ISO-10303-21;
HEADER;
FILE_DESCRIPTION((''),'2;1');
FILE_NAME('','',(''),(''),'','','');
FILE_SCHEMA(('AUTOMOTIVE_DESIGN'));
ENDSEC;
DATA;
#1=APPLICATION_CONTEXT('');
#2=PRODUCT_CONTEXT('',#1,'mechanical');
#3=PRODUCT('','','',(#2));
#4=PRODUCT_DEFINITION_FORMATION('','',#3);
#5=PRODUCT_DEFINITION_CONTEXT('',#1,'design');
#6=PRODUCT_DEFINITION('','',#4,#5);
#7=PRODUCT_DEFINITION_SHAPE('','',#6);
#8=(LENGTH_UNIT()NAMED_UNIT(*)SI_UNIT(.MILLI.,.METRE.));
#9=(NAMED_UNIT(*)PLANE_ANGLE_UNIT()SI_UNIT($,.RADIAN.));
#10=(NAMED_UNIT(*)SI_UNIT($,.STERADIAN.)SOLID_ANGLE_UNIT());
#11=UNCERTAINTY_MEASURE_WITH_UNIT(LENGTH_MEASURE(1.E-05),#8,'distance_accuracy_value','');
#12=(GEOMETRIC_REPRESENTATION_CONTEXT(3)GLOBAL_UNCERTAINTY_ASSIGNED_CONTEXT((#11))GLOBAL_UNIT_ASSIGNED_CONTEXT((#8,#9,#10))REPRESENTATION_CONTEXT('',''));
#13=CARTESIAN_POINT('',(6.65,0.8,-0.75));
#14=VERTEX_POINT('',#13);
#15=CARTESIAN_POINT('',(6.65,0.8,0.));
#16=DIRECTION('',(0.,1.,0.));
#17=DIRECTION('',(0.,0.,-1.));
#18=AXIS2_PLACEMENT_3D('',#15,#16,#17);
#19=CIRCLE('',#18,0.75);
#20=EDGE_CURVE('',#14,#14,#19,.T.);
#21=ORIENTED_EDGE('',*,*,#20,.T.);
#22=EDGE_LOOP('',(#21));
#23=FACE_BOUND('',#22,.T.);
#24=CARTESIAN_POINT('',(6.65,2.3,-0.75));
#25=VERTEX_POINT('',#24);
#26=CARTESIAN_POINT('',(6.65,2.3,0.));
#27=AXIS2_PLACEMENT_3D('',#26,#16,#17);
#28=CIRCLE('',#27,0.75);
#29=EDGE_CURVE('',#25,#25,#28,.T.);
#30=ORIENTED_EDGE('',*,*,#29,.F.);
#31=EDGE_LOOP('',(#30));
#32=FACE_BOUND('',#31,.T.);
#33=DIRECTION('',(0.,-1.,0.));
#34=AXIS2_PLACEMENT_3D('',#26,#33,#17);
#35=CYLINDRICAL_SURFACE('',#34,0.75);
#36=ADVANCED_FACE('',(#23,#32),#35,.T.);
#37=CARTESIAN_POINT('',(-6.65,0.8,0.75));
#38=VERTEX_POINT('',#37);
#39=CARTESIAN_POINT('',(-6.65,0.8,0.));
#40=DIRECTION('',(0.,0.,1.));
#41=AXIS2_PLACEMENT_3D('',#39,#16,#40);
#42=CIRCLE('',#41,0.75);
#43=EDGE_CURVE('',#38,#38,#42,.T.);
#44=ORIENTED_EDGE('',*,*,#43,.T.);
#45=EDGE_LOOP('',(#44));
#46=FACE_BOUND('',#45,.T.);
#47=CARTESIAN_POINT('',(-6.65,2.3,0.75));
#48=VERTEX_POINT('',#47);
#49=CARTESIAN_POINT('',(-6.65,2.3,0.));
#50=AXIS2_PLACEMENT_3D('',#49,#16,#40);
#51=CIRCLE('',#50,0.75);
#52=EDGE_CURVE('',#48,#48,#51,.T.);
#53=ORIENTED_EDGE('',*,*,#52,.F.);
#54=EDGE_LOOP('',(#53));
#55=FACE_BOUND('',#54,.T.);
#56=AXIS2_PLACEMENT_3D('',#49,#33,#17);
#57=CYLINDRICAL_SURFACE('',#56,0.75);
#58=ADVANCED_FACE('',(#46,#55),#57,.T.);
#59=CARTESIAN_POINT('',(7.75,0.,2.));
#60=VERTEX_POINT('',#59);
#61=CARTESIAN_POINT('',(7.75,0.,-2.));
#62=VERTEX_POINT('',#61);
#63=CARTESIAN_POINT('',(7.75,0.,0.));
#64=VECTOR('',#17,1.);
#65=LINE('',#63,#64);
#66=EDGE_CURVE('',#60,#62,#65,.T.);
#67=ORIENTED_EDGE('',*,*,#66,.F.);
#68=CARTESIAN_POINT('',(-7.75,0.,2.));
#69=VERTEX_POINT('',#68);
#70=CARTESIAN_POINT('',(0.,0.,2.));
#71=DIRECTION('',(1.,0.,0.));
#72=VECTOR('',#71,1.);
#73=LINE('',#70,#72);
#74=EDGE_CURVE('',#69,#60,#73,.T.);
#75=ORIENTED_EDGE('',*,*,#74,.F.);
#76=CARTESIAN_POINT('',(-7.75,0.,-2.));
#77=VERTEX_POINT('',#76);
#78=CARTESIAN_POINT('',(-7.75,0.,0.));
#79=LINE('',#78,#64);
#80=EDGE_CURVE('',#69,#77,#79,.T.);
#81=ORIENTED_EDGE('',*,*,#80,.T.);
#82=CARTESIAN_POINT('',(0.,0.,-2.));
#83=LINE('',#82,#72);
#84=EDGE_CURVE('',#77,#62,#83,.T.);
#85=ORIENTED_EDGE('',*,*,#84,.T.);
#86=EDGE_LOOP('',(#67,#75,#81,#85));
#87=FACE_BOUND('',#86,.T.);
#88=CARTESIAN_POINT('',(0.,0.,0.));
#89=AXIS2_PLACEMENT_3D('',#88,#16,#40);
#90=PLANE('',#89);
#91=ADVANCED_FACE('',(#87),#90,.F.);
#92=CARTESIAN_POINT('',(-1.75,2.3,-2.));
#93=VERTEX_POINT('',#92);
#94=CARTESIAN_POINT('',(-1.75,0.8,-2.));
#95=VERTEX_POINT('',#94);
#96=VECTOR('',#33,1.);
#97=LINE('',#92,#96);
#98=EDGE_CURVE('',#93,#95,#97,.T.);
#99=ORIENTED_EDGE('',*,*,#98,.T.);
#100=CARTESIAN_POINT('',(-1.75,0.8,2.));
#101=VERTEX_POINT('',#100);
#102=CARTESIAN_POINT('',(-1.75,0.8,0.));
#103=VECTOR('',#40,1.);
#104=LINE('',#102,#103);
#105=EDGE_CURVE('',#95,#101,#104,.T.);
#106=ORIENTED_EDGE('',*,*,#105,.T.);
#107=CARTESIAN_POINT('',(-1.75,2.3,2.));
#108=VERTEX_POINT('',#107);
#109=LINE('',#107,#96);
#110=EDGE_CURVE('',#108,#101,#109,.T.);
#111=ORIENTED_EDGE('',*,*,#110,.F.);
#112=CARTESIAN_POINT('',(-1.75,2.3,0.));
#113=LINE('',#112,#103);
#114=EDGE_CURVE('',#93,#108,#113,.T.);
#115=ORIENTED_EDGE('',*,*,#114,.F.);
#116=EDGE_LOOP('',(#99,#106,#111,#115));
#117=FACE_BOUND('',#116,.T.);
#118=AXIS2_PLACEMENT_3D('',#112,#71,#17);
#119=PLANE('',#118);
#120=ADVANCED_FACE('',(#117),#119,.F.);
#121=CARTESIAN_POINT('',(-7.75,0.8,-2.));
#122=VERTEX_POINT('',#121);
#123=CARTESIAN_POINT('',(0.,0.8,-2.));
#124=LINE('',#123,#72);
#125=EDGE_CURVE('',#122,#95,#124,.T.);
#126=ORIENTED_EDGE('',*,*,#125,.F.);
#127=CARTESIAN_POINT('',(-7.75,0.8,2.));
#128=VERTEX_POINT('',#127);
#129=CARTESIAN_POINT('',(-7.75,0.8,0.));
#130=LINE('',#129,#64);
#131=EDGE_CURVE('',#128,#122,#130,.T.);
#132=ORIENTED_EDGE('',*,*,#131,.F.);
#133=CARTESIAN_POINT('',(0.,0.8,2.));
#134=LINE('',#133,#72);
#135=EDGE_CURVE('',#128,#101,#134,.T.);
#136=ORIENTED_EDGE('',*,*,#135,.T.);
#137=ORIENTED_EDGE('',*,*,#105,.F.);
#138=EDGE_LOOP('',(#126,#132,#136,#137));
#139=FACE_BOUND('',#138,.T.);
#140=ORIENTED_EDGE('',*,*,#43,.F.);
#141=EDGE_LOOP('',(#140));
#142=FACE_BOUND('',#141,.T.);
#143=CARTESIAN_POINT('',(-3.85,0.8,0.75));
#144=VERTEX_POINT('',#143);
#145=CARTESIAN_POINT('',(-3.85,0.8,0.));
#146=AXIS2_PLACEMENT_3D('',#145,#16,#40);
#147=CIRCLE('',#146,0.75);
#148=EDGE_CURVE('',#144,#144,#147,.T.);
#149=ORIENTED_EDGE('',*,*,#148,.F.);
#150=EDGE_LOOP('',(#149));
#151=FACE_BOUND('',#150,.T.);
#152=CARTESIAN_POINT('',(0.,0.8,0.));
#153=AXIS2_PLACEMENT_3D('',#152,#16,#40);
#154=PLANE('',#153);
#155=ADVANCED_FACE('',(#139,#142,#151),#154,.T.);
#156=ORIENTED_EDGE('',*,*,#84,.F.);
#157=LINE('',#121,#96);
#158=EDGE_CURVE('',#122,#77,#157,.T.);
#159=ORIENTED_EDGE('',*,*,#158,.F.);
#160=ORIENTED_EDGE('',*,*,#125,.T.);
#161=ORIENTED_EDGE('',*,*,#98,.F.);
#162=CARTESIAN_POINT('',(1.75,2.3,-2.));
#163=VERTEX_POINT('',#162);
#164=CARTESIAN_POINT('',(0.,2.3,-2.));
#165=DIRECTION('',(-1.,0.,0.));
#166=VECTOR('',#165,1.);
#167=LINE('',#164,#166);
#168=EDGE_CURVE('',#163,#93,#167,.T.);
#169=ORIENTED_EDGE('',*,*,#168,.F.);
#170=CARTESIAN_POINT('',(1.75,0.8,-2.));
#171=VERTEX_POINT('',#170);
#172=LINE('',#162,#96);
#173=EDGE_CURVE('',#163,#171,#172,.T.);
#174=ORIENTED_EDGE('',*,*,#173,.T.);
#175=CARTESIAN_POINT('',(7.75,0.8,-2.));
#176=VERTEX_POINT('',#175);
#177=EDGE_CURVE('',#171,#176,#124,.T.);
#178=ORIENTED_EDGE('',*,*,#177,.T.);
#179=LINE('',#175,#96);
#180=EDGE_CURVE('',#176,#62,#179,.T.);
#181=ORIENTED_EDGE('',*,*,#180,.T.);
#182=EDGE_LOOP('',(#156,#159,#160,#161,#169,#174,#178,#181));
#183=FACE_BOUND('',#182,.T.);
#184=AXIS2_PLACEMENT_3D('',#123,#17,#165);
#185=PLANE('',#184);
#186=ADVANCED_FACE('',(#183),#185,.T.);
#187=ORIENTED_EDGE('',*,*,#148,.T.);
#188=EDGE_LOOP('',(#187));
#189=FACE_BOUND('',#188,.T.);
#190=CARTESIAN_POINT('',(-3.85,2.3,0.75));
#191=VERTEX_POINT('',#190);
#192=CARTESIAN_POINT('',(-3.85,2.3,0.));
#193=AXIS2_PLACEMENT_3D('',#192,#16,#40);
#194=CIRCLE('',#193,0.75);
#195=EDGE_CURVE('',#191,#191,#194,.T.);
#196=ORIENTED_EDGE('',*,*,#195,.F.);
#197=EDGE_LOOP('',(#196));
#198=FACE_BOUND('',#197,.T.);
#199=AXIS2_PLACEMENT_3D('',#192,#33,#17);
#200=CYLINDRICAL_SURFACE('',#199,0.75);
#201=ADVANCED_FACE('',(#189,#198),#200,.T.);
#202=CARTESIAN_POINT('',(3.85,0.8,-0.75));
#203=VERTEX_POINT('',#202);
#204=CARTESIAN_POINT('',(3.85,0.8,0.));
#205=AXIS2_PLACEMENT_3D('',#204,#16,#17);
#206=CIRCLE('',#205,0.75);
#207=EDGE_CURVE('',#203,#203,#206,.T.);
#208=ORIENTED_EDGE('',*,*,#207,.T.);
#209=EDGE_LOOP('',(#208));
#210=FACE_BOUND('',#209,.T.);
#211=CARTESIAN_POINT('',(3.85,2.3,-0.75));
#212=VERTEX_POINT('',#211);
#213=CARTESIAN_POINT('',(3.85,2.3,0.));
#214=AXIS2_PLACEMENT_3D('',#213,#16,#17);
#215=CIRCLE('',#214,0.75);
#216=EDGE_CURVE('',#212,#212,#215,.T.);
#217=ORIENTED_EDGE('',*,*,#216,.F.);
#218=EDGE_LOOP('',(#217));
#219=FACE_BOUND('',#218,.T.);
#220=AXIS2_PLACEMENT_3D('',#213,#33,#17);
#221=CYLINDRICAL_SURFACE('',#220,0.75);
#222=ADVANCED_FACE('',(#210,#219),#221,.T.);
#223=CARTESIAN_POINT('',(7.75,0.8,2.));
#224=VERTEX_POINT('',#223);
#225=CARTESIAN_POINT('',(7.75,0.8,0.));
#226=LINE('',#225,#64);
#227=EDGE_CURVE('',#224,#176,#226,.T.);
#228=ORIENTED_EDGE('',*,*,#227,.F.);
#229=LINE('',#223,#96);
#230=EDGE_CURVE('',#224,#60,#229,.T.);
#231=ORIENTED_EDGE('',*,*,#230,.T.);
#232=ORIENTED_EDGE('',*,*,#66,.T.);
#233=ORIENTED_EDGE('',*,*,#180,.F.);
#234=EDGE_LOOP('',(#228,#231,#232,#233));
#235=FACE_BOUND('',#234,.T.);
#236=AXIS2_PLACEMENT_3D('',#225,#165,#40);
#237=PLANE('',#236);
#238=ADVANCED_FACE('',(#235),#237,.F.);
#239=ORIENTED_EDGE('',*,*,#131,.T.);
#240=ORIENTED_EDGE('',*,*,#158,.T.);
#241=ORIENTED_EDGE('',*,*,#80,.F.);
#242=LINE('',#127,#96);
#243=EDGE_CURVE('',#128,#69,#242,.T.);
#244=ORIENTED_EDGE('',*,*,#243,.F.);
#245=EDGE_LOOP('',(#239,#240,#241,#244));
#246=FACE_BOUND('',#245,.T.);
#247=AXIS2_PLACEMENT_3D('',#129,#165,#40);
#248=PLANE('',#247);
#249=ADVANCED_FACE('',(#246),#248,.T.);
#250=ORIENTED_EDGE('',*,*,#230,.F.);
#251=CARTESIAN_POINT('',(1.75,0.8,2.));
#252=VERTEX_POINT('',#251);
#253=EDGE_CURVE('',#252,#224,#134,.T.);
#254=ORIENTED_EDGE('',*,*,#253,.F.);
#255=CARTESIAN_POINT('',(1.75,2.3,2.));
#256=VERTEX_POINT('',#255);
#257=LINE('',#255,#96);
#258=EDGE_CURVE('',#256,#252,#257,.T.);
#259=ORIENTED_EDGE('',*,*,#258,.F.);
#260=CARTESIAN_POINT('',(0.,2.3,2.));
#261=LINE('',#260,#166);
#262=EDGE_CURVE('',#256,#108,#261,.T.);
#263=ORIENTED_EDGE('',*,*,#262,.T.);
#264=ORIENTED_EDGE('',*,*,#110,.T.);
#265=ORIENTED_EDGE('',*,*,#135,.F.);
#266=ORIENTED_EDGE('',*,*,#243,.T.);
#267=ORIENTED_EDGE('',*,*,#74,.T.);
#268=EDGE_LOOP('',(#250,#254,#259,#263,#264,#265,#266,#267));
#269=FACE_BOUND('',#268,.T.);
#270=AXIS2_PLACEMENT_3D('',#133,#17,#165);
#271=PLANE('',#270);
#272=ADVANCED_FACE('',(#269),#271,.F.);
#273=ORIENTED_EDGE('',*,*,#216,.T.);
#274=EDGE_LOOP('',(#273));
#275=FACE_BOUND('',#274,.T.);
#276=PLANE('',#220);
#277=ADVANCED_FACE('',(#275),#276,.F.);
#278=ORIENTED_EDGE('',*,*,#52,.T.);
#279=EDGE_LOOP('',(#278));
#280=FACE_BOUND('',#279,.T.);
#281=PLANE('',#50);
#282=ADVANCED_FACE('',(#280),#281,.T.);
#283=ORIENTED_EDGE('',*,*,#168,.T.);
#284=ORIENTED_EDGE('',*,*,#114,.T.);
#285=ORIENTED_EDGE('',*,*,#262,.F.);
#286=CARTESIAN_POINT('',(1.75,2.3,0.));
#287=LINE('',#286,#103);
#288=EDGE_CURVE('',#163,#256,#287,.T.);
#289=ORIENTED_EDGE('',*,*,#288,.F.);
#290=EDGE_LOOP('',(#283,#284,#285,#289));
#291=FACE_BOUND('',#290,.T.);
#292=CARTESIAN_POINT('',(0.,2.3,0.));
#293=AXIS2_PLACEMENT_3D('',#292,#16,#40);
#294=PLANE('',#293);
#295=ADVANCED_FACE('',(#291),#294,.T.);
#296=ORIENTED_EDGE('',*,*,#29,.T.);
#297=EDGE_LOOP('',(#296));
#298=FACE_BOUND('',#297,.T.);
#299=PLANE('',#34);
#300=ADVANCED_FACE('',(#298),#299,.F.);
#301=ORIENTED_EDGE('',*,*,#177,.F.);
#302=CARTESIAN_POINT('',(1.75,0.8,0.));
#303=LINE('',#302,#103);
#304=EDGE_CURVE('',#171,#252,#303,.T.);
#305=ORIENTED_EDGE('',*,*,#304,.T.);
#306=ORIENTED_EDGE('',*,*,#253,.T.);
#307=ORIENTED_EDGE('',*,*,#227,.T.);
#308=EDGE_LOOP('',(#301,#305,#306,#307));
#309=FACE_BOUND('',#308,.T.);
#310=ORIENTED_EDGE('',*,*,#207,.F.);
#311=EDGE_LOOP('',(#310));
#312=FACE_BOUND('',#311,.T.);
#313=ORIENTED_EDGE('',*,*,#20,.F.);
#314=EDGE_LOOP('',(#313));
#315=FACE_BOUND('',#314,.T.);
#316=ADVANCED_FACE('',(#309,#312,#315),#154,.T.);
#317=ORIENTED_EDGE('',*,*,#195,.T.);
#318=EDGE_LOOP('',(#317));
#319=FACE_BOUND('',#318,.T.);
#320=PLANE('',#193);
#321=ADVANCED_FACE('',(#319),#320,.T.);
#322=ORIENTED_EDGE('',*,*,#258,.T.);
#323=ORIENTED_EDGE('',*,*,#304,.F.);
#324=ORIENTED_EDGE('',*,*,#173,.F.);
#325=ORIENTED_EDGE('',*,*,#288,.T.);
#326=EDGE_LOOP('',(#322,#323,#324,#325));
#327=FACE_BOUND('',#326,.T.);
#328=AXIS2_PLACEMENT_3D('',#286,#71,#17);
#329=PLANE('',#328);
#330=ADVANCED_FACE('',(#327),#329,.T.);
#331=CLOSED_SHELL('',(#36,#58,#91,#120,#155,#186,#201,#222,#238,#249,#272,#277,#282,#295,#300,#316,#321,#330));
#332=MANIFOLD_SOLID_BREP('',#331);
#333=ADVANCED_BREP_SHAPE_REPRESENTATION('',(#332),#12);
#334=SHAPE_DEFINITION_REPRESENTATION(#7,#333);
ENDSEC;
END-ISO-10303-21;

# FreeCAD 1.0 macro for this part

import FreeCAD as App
import Part
import Sketcher

doc = App.newDocument("Part")
body = doc.addObject("PartDesign::Body", "Body")

# Sketch on XZ plane
sketch1 = doc.addObject("Sketcher::SketchObject", "Sketch")
body.addObject(sketch1)
sketch1.AttachmentSupport = (doc.XZ_Plane, [""])
sketch1.MapMode = "FlatFace"
sketch1.addGeometry([
    Part.LineSegment(App.Vector(-7.8, -2, 0), App.Vector(-7.8, 2, 0)),
    Part.LineSegment(App.Vector(-7.8, 2, 0), App.Vector(7.8, 2, 0)),
    Part.LineSegment(App.Vector(7.8, 2, 0), App.Vector(7.8, -2, 0)),
    Part.LineSegment(App.Vector(7.8, -2, 0), App.Vector(-7.8, -2, 0)),
], False)
sketch1.addConstraint([
    Sketcher.Constraint("Coincident", 0, 2, 1, 1),
    Sketcher.Constraint("Coincident", 1, 2, 2, 1),
    Sketcher.Constraint("Coincident", 2, 2, 3, 1),
    Sketcher.Constraint("Coincident", 3, 2, 0, 1),
    Sketcher.Constraint("Vertical", 0),
    Sketcher.Constraint("Horizontal", 1),
    Sketcher.Constraint("Vertical", 2),
    Sketcher.Constraint("Horizontal", 3),
    Sketcher.Constraint("Symmetric", 0, 2, 2, 2, -1, 1),
    Sketcher.Constraint("DistanceY", 0, 1, 0, 2, 4.0),
    Sketcher.Constraint("DistanceX", 1, 1, 1, 2, 15.5),
])
pad1 = doc.addObject("PartDesign::Pad", "Pad")
body.addObject(pad1)
pad1.Profile = sketch1
pad1.Length = 0.8
pad1.Reversed = True

# Sketch on XZ plane
sketch2 = doc.addObject("Sketcher::SketchObject", "Sketch001")
body.addObject(sketch2)
sketch2.AttachmentSupport = (doc.XZ_Plane, [""])
sketch2.MapMode = "FlatFace"
sketch2.AttachmentOffset = App.Placement(App.Vector(0, 0, -0.8), App.Rotation())
sketch2.addGeometry([
    Part.LineSegment(App.Vector(-1.8, -2, 0), App.Vector(-1.8, 2, 0)),
    Part.LineSegment(App.Vector(-1.8, 2, 0), App.Vector(1.8, 2, 0)),
    Part.LineSegment(App.Vector(1.8, 2, 0), App.Vector(1.8, -2, 0)),
    Part.LineSegment(App.Vector(1.8, -2, 0), App.Vector(-1.8, -2, 0)),
], False)
sketch2.addConstraint([
    Sketcher.Constraint("Coincident", 0, 2, 1, 1),
    Sketcher.Constraint("Coincident", 1, 2, 2, 1),
    Sketcher.Constraint("Coincident", 2, 2, 3, 1),
    Sketcher.Constraint("Coincident", 3, 2, 0, 1),
    Sketcher.Constraint("Vertical", 0),
    Sketcher.Constraint("Horizontal", 1),
    Sketcher.Constraint("Vertical", 2),
    Sketcher.Constraint("Horizontal", 3),
    Sketcher.Constraint("Symmetric", 0, 2, 2, 2, -1, 1),
    Sketcher.Constraint("DistanceY", 0, 1, 0, 2, 4.0),
    Sketcher.Constraint("DistanceX", 1, 1, 1, 2, 3.5),
])
pad2 = doc.addObject("PartDesign::Pad", "Pad001")
body.addObject(pad2)
pad2.Profile = sketch2
pad2.Length = 1.5
pad2.Reversed = True

# Sketch on XZ plane
sketch3 = doc.addObject("Sketcher::SketchObject", "Sketch002")
body.addObject(sketch3)
sketch3.AttachmentSupport = (doc.XZ_Plane, [""])
sketch3.MapMode = "FlatFace"
sketch3.AttachmentOffset = App.Placement(App.Vector(0, 0, -0.8), App.Rotation())
sketch3.addGeometry([
    Part.Circle(App.Vector(-3.9, 0, 0), App.Vector(0, 0, 1), 0.8),
    Part.Circle(App.Vector(-6.7, 0, 0), App.Vector(0, 0, 1), 0.8),
    Part.Circle(App.Vector(6.7, 0, 0), App.Vector(0, 0, 1), 0.8),
    Part.Circle(App.Vector(3.9, 0, 0), App.Vector(0, 0, 1), 0.8),
], False)
sketch3.addConstraint([
    Sketcher.Constraint("Equal", 0, 1),
    Sketcher.Constraint("Equal", 1, 2),
    Sketcher.Constraint("Equal", 2, 3),
    Sketcher.Constraint("Symmetric", 1, 3, 2, 3, -1, 1),
    Sketcher.Constraint("Symmetric", 0, 3, 3, 3, -1, 1),
    Sketcher.Constraint("PointOnObject", 0, 3, -1),
    Sketcher.Constraint("PointOnObject", 1, 3, -1),
    Sketcher.Constraint("Diameter", 0, 1.5),
    Sketcher.Constraint("DistanceX", 1, 3, 0, 3, 2.8),
    Sketcher.Constraint("DistanceX", 0, 3, 2, 3, 10.5),
])
pad3 = doc.addObject("PartDesign::Pad", "Pad002")
body.addObject(pad3)
pad3.Profile = sketch3
pad3.Length = 1.5
pad3.Reversed = True

doc.recompute()
